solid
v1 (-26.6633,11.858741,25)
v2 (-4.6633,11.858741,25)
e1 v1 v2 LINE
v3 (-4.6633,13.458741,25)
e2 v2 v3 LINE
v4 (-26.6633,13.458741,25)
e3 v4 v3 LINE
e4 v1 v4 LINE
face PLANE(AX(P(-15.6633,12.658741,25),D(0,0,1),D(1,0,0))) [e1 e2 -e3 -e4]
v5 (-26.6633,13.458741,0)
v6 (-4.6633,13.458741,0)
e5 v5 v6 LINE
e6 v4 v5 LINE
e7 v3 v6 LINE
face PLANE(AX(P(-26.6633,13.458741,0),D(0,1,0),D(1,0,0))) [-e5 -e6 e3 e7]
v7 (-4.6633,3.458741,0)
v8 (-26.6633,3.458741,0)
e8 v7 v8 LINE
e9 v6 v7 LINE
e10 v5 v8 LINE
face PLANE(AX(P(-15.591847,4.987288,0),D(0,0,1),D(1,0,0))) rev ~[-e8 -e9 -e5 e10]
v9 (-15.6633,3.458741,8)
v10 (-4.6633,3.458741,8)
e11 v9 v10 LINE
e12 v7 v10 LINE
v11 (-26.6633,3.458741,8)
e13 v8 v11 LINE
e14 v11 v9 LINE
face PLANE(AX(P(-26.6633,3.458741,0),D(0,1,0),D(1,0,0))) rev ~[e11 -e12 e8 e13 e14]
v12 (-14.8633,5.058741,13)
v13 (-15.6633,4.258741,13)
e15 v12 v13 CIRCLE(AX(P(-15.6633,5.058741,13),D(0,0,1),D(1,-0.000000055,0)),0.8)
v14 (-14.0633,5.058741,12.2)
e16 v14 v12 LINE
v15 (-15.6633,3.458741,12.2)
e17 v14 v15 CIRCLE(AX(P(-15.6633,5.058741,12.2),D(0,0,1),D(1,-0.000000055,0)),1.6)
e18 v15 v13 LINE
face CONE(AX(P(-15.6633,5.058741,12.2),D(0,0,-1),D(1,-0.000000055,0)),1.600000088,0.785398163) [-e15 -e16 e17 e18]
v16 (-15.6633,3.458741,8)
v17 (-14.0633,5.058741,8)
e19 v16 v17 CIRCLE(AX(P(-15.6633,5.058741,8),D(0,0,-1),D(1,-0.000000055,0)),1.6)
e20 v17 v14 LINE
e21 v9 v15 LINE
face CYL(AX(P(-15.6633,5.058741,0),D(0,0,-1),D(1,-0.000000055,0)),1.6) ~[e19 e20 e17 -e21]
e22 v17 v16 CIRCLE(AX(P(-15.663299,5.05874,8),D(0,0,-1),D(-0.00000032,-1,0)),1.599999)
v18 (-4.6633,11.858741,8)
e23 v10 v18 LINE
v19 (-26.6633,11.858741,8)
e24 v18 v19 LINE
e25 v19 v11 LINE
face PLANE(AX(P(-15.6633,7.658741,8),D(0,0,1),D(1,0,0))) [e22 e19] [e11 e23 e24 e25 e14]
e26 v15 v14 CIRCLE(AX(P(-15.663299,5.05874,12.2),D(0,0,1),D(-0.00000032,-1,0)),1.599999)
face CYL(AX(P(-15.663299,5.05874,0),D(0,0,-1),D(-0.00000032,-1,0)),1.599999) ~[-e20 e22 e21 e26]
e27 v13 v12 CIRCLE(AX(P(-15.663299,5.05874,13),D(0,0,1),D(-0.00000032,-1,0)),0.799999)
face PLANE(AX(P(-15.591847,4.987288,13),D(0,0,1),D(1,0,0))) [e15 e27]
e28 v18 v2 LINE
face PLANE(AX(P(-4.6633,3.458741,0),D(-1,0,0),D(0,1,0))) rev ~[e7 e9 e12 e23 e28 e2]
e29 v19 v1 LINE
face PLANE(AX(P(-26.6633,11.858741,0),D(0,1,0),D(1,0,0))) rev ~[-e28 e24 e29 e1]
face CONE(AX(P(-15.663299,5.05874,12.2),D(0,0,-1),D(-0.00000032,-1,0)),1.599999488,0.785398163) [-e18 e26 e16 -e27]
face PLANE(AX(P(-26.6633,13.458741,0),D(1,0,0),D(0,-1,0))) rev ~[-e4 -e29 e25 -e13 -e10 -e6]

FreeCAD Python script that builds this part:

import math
import FreeCAD as App
import Part
import Sketcher
Q = App.Units.Quantity


def edges_at(feature, points):
    """Names of the edges that pass closest to the given points."""
    edges = feature.Shape.Edges
    near = lambda p: min(range(len(edges)), key=lambda i: edges[i].distToShape(Part.Vertex(*p))[0])
    return sorted({f"Edge{near(p) + 1}" for p in points})


def add_polygon(sketch, points):
    """Adds a closed chain of lines whose ends are joined by coincident constraints."""
    first, n = sketch.GeometryCount, len(points)
    for a, b in zip(points, points[1:] + points[:1]):
        sketch.addGeometry(Part.LineSegment(App.Vector(*a, 0), App.Vector(*b, 0)), False)
    for i in range(n):
        sketch.addConstraint(Sketcher.Constraint("Coincident", first + i, 2, first + (i + 1) % n, 1))

doc = App.newDocument("Part")
params = doc.addObject("Spreadsheet::Sheet", "Params")
for row, (alias, value) in enumerate([
    ("sketch1_width", "22 mm"),
    ("sketch1_height", "10 mm"),
    ("pad1_length", "8 mm"),
    ("sketch2_width", "22 mm"),
    ("sketch2_height", "1.6 mm"),
    ("pad2_length", "25 mm"),
    ("sketch3_radius", "1.6 mm"),
    ("pad3_length", "13 mm"),
    ("chamfer_size", "0.8 mm"),
], start=1):
    params.set(f"A{row}", alias)
    params.set(f"B{row}", "=" + value)
    params.setAlias(f"B{row}", alias)

body = doc.addObject("PartDesign::Body", "Body")

# Sketch on XY plane
sketch1 = doc.addObject("Sketcher::SketchObject", "Sketch")
body.addObject(sketch1)
sketch1.AttachmentSupport = (doc.XY_Plane, [""])
sketch1.MapMode = "FlatFace"
add_polygon(sketch1, [(-27, 3), (-5, 3), (-5, 13), (-27, 13)])  # lines 0-3
sketch1.addConstraint(Sketcher.Constraint("Horizontal", 0))
sketch1.addConstraint(Sketcher.Constraint("Vertical", 1))
sketch1.addConstraint(Sketcher.Constraint("Horizontal", 2))
sketch1.addConstraint(Sketcher.Constraint("Vertical", 3))
sketch1.addConstraint(Sketcher.Constraint("DistanceX", 0, 1, 0, 2, Q("22 mm")))
sketch1.addConstraint(Sketcher.Constraint("DistanceY", 1, 1, 1, 2, Q("10 mm")))
sketch1.addConstraint(Sketcher.Constraint("DistanceX", 0, 2, -1, 1, Q("4.6633 mm")))
sketch1.addConstraint(Sketcher.Constraint("DistanceY", -1, 1, 0, 2, Q("3.458741 mm")))
sketch1.setExpression("Constraints[8]", "Params.sketch1_width")
sketch1.setExpression("Constraints[9]", "Params.sketch1_height")
pad1 = doc.addObject("PartDesign::Pad", "Pad")
body.addObject(pad1)
pad1.Profile = sketch1
pad1.setExpression("Length", "Params.pad1_length")

# Sketch on XY plane
sketch2 = doc.addObject("Sketcher::SketchObject", "Sketch001")
body.addObject(sketch2)
sketch2.AttachmentSupport = (doc.XY_Plane, [""])
sketch2.MapMode = "FlatFace"
add_polygon(sketch2, [(-26.7, 13.5), (-26.7, 11.9), (-4.7, 11.9), (-4.7, 13.5)])  # lines 0-3
sketch2.addConstraint(Sketcher.Constraint("Vertical", 0))
sketch2.addConstraint(Sketcher.Constraint("Horizontal", 1))
sketch2.addConstraint(Sketcher.Constraint("Vertical", 2))
sketch2.addConstraint(Sketcher.Constraint("Horizontal", 3))
sketch2.addConstraint(Sketcher.Constraint("DistanceX", 1, 1, 1, 2, Q("22 mm")))
sketch2.addConstraint(Sketcher.Constraint("DistanceY", 0, 2, 0, 1, Q("1.6 mm")))
sketch2.addConstraint(Sketcher.Constraint("DistanceX", 0, 2, -1, 1, Q("26.6633 mm")))
sketch2.addConstraint(Sketcher.Constraint("DistanceY", -1, 1, 0, 2, Q("11.858741 mm")))
sketch2.setExpression("Constraints[8]", "Params.sketch2_width")
sketch2.setExpression("Constraints[9]", "Params.sketch2_height")
pad2 = doc.addObject("PartDesign::Pad", "Pad001")
body.addObject(pad2)
pad2.Profile = sketch2
pad2.setExpression("Length", "Params.pad2_length")

# Sketch on XY plane
sketch3 = doc.addObject("Sketcher::SketchObject", "Sketch002")
body.addObject(sketch3)
sketch3.AttachmentSupport = (doc.XY_Plane, [""])
sketch3.MapMode = "FlatFace"
sketch3.addGeometry(Part.ArcOfCircle(Part.Circle(App.Vector(-15.7, 5.1, 0), App.Vector(0, 0, 1), 1.6), math.radians(0), math.radians(270)), False)
sketch3.addGeometry(Part.ArcOfCircle(Part.Circle(App.Vector(-15.7, 5.1, 0), App.Vector(0, 0, 1), 1.6), math.radians(-90), math.radians(0)), False)
sketch3.addConstraint(Sketcher.Constraint("Tangent", 0, 1, 1, 2))
sketch3.addConstraint(Sketcher.Constraint("Coincident", 1, 1, 0, 2))
sketch3.addConstraint(Sketcher.Constraint("Horizontal", 1, 3, 0, 1))
sketch3.addConstraint(Sketcher.Constraint("Vertical", 0, 3, 1, 1))
sketch3.addConstraint(Sketcher.Constraint("Radius", 0, Q("1.6 mm")))
sketch3.addConstraint(Sketcher.Constraint("DistanceX", 0, 3, -1, 1, Q("15.6633 mm")))
sketch3.addConstraint(Sketcher.Constraint("DistanceY", -1, 1, 0, 3, Q("5.058741 mm")))
sketch3.setExpression("Constraints[4]", "Params.sketch3_radius")
pad3 = doc.addObject("PartDesign::Pad", "Pad002")
body.addObject(pad3)
pad3.Profile = sketch3
pad3.setExpression("Length", "Params.pad3_length")
doc.recompute()

chamfer = doc.addObject("PartDesign::Chamfer", "Chamfer")
body.addObject(chamfer)
chamfer.Base = (pad3, edges_at(pad3, [(-16.795, 6.19, 13)]))
chamfer.setExpression("Size", "Params.chamfer_size")

doc.recompute()
